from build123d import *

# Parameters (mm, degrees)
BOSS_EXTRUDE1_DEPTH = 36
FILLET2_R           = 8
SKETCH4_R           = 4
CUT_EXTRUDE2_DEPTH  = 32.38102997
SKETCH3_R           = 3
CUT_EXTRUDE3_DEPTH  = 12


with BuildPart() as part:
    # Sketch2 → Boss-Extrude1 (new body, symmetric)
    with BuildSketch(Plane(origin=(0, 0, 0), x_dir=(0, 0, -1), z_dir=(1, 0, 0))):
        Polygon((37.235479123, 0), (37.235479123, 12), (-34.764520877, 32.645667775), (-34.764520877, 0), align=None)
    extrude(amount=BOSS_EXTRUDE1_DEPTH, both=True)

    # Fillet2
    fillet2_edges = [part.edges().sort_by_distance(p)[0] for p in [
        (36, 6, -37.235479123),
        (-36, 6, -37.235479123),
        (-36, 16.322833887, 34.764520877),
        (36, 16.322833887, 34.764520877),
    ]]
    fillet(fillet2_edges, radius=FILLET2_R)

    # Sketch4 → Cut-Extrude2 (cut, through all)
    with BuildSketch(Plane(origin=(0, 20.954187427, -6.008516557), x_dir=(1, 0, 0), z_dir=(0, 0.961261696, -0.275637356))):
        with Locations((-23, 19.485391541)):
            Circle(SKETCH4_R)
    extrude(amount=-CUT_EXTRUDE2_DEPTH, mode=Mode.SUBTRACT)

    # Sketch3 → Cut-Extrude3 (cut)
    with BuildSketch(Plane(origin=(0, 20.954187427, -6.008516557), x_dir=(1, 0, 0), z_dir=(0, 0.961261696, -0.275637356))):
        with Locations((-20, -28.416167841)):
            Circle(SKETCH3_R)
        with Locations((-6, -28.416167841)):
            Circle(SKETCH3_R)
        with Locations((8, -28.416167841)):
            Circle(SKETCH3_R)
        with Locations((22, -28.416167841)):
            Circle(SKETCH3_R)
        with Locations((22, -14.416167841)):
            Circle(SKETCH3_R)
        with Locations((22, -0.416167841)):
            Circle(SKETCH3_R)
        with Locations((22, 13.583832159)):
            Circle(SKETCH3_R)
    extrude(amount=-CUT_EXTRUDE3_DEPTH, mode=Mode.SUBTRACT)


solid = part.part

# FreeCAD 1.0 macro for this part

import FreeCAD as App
import Part
import Sketcher
from FreeCAD import Vector
Q = App.Units.Quantity


def edges_at(feature, points):
    """Names of the edges that pass closest to the given points."""
    edges = feature.Shape.Edges
    near = lambda p: min(range(len(edges)), key=lambda i: edges[i].distToShape(Part.Vertex(*p))[0])
    return sorted({f"Edge{near(p) + 1}" for p in points})

doc = App.newDocument("Part")
body = doc.addObject("PartDesign::Body", "Body")

# Sketch on YZ plane
sketch1 = doc.addObject("Sketcher::SketchObject", "Sketch")
body.addObject(sketch1)
sketch1.AttachmentSupport = (doc.YZ_Plane, [""])
sketch1.MapMode = "FlatFace"
sketch1.addGeometry([
    Part.LineSegment(Vector(0, -37.235479, 0), Vector(12, -37.235479, 0)),
    Part.LineSegment(Vector(12, -37.235479, 0), Vector(32.645668, 34.764521, 0)),
    Part.LineSegment(Vector(32.645668, 34.764521, 0), Vector(0, 34.764521, 0)),
    Part.LineSegment(Vector(0, 34.764521, 0), Vector(0, -37.235479, 0)),
], False)
sketch1.addConstraint([
    Sketcher.Constraint("Coincident", 0, 2, 1, 1),
    Sketcher.Constraint("Coincident", 1, 2, 2, 1),
    Sketcher.Constraint("Coincident", 2, 2, 3, 1),
    Sketcher.Constraint("Coincident", 3, 2, 0, 1),
    Sketcher.Constraint("Horizontal", 0),
    Sketcher.Constraint("Horizontal", 2),
    Sketcher.Constraint("Vertical", 3),
    Sketcher.Constraint("PointOnObject", 2, 2, -2),
    Sketcher.Constraint("DistanceX", 0, 1, 0, 2, 12.0),
    Sketcher.Constraint("DistanceY", 3, 2, 3, 1, 72.0),
    Sketcher.Constraint("Angle", 1, Q("74 deg")),
    Sketcher.Constraint("DistanceY", 0, 2, -1, 1, 37.235479),
])
pad1 = doc.addObject("PartDesign::Pad", "Pad")
body.addObject(pad1)
pad1.Profile = sketch1
pad1.Length = 72
pad1.Midplane = True
doc.recompute()

fillet = doc.addObject("PartDesign::Fillet", "Fillet")
body.addObject(fillet)
fillet.Base = (pad1, edges_at(pad1, [
    (36, 6, -37.235),
    (-36, 6, -37.235),
    (-36, 16.323, 34.765),
    (36, 16.323, 34.765),
]))
fillet.Radius = 8

# Sketch on an angled plane
sketch2 = doc.addObject("Sketcher::SketchObject", "Sketch001")
body.addObject(sketch2)
sketch2.Placement = App.Placement(Vector(0, 20.954187, -6.008517), App.Rotation(Vector(1, 0, 0), Vector(0, -0.275637356, -0.961261696), Vector(0, 0.961261696, -0.275637356), "ZXY"))
sketch2.addGeometry(Part.Circle(Vector(-23, 19.485392, 0), Vector(0, 0, 1), 4), False)
sketch2.addConstraint([
    Sketcher.Constraint("Diameter", 0, 8.0),
    Sketcher.Constraint("DistanceX", 0, 3, -1, 1, 23.0),
    Sketcher.Constraint("DistanceY", -1, 1, 0, 3, 19.485392),
])
pocket1 = doc.addObject("PartDesign::Pocket", "Pocket")
body.addObject(pocket1)
pocket1.Profile = sketch2
pocket1.Type = "ThroughAll"

# Sketch on an angled plane
sketch3 = doc.addObject("Sketcher::SketchObject", "Sketch002")
body.addObject(sketch3)
sketch3.Placement = App.Placement(Vector(0, 20.954187, -6.008517), App.Rotation(Vector(1, 0, 0), Vector(0, -0.275637356, -0.961261696), Vector(0, 0.961261696, -0.275637356), "ZXY"))
sketch3.addGeometry([
    Part.Circle(Vector(-20, -28.416168, 0), Vector(0, 0, 1), 3),  # 0
    Part.Circle(Vector(-6, -28.416168, 0), Vector(0, 0, 1), 3),  # 1
    Part.Circle(Vector(8, -28.416168, 0), Vector(0, 0, 1), 3),  # 2
    Part.Circle(Vector(22, -28.416168, 0), Vector(0, 0, 1), 3),  # 3
    Part.Circle(Vector(22, -14.416168, 0), Vector(0, 0, 1), 3),  # 4
    Part.Circle(Vector(22, -0.416168, 0), Vector(0, 0, 1), 3),  # 5
    Part.Circle(Vector(22, 13.583832, 0), Vector(0, 0, 1), 3),  # 6
], False)
sketch3.addConstraint([
    Sketcher.Constraint("Equal", 0, 1),
    Sketcher.Constraint("Equal", 1, 2),
    Sketcher.Constraint("Equal", 2, 3),
    Sketcher.Constraint("Equal", 3, 4),
    Sketcher.Constraint("Equal", 4, 5),
    Sketcher.Constraint("Equal", 5, 6),
    Sketcher.Constraint("Horizontal", 0, 3, 1, 3),
    Sketcher.Constraint("Horizontal", 1, 3, 2, 3),
    Sketcher.Constraint("Horizontal", 2, 3, 3, 3),
    Sketcher.Constraint("Vertical", 3, 3, 4, 3),
    Sketcher.Constraint("Vertical", 4, 3, 5, 3),
    Sketcher.Constraint("Vertical", 5, 3, 6, 3),
    Sketcher.Constraint("Diameter", 0, 6.0),
    Sketcher.Constraint("DistanceX", 0, 3, -1, 1, 20.0),
    Sketcher.Constraint("DistanceX", 1, 3, -1, 1, 6.0),
    Sketcher.Constraint("DistanceX", -1, 1, 2, 3, 8.0),
    Sketcher.Constraint("DistanceX", -1, 1, 3, 3, 22.0),
    Sketcher.Constraint("DistanceY", 3, 3, 4, 3, 14.0),
    Sketcher.Constraint("DistanceY", 4, 3, 5, 3, 14.0),
    Sketcher.Constraint("DistanceY", 5, 3, 6, 3, 14.0),
    Sketcher.Constraint("DistanceY", 0, 3, -1, 1, 28.416168),
])
pocket2 = doc.addObject("PartDesign::Pocket", "Pocket001")
body.addObject(pocket2)
pocket2.Profile = sketch3
pocket2.Length = 12

doc.recompute()
